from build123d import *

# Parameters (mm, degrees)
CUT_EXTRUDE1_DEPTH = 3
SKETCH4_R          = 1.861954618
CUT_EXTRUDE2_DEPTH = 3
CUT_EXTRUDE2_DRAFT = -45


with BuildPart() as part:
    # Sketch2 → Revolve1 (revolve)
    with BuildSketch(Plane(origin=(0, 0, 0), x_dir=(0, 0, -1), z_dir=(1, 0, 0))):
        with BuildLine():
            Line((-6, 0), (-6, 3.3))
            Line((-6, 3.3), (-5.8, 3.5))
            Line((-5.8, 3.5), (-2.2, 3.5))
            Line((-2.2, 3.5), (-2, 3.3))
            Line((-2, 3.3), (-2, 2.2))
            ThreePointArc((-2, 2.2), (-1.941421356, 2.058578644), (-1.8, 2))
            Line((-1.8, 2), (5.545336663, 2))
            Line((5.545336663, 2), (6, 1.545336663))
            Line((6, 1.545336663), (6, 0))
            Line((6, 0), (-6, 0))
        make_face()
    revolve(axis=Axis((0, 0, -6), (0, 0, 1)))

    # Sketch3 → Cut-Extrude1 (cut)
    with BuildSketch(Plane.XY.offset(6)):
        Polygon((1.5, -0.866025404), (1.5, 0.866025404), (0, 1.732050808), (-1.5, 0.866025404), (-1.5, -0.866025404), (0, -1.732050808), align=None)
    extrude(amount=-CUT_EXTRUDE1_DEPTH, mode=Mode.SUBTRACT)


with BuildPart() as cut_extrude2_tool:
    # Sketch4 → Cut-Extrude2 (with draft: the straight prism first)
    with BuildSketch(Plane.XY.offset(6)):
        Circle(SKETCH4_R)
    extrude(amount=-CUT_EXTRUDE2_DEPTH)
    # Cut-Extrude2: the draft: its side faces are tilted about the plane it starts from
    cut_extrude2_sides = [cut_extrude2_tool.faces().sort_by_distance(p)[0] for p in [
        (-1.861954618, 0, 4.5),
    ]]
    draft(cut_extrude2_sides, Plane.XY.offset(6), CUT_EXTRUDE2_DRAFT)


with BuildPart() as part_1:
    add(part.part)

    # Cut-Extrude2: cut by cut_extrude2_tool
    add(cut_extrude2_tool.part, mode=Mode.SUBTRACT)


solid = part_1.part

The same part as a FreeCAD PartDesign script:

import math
import FreeCAD as App
import Part
import Sketcher
Q = App.Units.Quantity


def faces_at(feature, points):
    """Names of the faces that lie closest to the given points."""
    faces = feature.Shape.Faces
    near = lambda p: min(range(len(faces)), key=lambda i: faces[i].distToShape(Part.Vertex(*p))[0])
    return sorted({f"Face{near(p) + 1}" for p in points})

doc = App.newDocument("Part")
params = doc.addObject("Spreadsheet::Sheet", "Params")
for row, (alias, value) in enumerate([
    ("sketch1_radius", "0.2 mm"),
    ("sketch1_height", "12 mm"),
    ("sketch1_width", "3.3 mm"),
    ("sketch1_width2", "1.1 mm"),
    ("sketch1_height2", "3.6 mm"),
    ("revolution_angle", "360 deg"),
    ("pocket1_length", "3 mm"),
    ("pad1_length", "3 mm"),
    ("draft_angle", "45 deg"),
], start=1):
    params.set(f"A{row}", alias)
    params.set(f"B{row}", "=" + value)
    params.setAlias(f"B{row}", alias)

body = doc.addObject("PartDesign::Body", "Body")

# Sketch on YZ plane
sketch1 = body.newObject("Sketcher::SketchObject", "Sketch")
sketch1.AttachmentSupport = (doc.getObject("YZ_Plane"), [""])
sketch1.MapMode = "FlatFace"
sketch1.addGeometry([
    Part.LineSegment(App.Vector(3.3, 6, 0), App.Vector(0, 6, 0)),  # 0
    Part.LineSegment(App.Vector(0, 6, 0), App.Vector(0, -6, 0)),  # 1
    Part.LineSegment(App.Vector(0, -6, 0), App.Vector(1.55, -6, 0)),  # 2
    Part.LineSegment(App.Vector(1.55, -6, 0), App.Vector(2, -5.55, 0)),  # 3
    Part.LineSegment(App.Vector(2, -5.55, 0), App.Vector(2, 1.8, 0)),  # 4
    Part.ArcOfCircle(Part.Circle(App.Vector(2.2, 1.8, 0), App.Vector(0, 0, 1), 0.2), math.radians(90), math.radians(180)),  # 5
    Part.LineSegment(App.Vector(2.2, 2, 0), App.Vector(3.3, 2, 0)),  # 6
    Part.LineSegment(App.Vector(3.3, 2, 0), App.Vector(3.5, 2.2, 0)),  # 7
    Part.LineSegment(App.Vector(3.5, 2.2, 0), App.Vector(3.5, 5.8, 0)),  # 8
    Part.LineSegment(App.Vector(3.5, 5.8, 0), App.Vector(3.3, 6, 0)),  # 9
], False)
sketch1.addConstraint([
    Sketcher.Constraint("Coincident", 0, 2, 1, 1),
    Sketcher.Constraint("Coincident", 1, 2, 2, 1),
    Sketcher.Constraint("Coincident", 2, 2, 3, 1),
    Sketcher.Constraint("Coincident", 3, 2, 4, 1),
    Sketcher.Constraint("Tangent", 4, 2, 5, 2),
    Sketcher.Constraint("Tangent", 5, 1, 6, 1),
    Sketcher.Constraint("Coincident", 6, 2, 7, 1),
    Sketcher.Constraint("Coincident", 7, 2, 8, 1),
    Sketcher.Constraint("Coincident", 8, 2, 9, 1),
    Sketcher.Constraint("Coincident", 9, 2, 0, 1),
    Sketcher.Constraint("Horizontal", 0),
    Sketcher.Constraint("Vertical", 1),
    Sketcher.Constraint("Horizontal", 2),
    Sketcher.Constraint("Vertical", 4),
    Sketcher.Constraint("Horizontal", 6),
    Sketcher.Constraint("Vertical", 8),
    Sketcher.Constraint("Symmetric", 0, 2, 1, 2, -1, 1),
    Sketcher.Constraint("Parallel", 3, 7),
    Sketcher.Constraint("Perpendicular", 7, 9),
    Sketcher.Constraint("Vertical", 6, 2, 9, 2),
    Sketcher.Constraint("Equal", 7, 9),
    Sketcher.Constraint("Radius", 5, Q("0.2 mm")),
    Sketcher.Constraint("DistanceY", 1, 2, 1, 1, Q("12 mm")),
    Sketcher.Constraint("DistanceX", 0, 2, 0, 1, Q("3.3 mm")),
    Sketcher.Constraint("DistanceX", 6, 1, 6, 2, Q("1.1 mm")),
    Sketcher.Constraint("DistanceY", 8, 1, 8, 2, Q("3.6 mm")),
    Sketcher.Constraint("DistanceY", -1, 1, 5, 1, Q("2 mm")),
    Sketcher.Constraint("Distance", 3, Q("0.642991 mm")),
])
sketch1.setExpression("Constraints[21]", "Params.sketch1_radius")
sketch1.setExpression("Constraints[22]", "Params.sketch1_height")
sketch1.setExpression("Constraints[23]", "Params.sketch1_width")
sketch1.setExpression("Constraints[24]", "Params.sketch1_width2")
sketch1.setExpression("Constraints[25]", "Params.sketch1_height2")
revolution = body.newObject("PartDesign::Revolution", "Revolution")
revolution.Profile = sketch1
revolution.ReferenceAxis = (sketch1, ["V_Axis"])
revolution.setExpression("Angle", "Params.revolution_angle")

# Sketch on XY plane
sketch2 = body.newObject("Sketcher::SketchObject", "Sketch001")
sketch2.AttachmentSupport = (doc.getObject("XY_Plane"), [""])
sketch2.MapMode = "FlatFace"
sketch2.AttachmentOffset = App.Placement(App.Vector(0, 0, 6), App.Rotation())
sketch2.addGeometry([
    Part.LineSegment(App.Vector(1.5, -0.9, 0), App.Vector(1.5, 0.9, 0)),  # 0
    Part.LineSegment(App.Vector(1.5, 0.9, 0), App.Vector(0, 1.7, 0)),  # 1
    Part.LineSegment(App.Vector(0, 1.7, 0), App.Vector(-1.5, 0.9, 0)),  # 2
    Part.LineSegment(App.Vector(-1.5, 0.9, 0), App.Vector(-1.5, -0.9, 0)),  # 3
    Part.LineSegment(App.Vector(-1.5, -0.9, 0), App.Vector(0, -1.7, 0)),  # 4
    Part.LineSegment(App.Vector(0, -1.7, 0), App.Vector(1.5, -0.9, 0)),  # 5
], False)
sketch2.addConstraint([
    Sketcher.Constraint("Coincident", 0, 2, 1, 1),
    Sketcher.Constraint("Coincident", 1, 2, 2, 1),
    Sketcher.Constraint("Coincident", 2, 2, 3, 1),
    Sketcher.Constraint("Coincident", 3, 2, 4, 1),
    Sketcher.Constraint("Coincident", 4, 2, 5, 1),
    Sketcher.Constraint("Coincident", 5, 2, 0, 1),
    Sketcher.Constraint("Vertical", 0),
    Sketcher.Constraint("Vertical", 3),
    Sketcher.Constraint("Symmetric", 0, 2, 3, 2, -1, 1),
    Sketcher.Constraint("Symmetric", 1, 2, 4, 2, -1, 1),
    Sketcher.Constraint("PointOnObject", 1, 2, -2),
    Sketcher.Constraint("Parallel", 2, 5),
    Sketcher.Constraint("Horizontal", 0, 2, 2, 2),
    Sketcher.Constraint("Angle", 1, Q("150 deg")),
    Sketcher.Constraint("DistanceX", 2, 2, 0, 2, Q("3 mm")),
    Sketcher.Constraint("DistanceY", 0, 1, 0, 2, Q("1.732051 mm")),
])
pocket1 = body.newObject("PartDesign::Pocket", "Pocket")
pocket1.Profile = sketch2
pocket1.setExpression("Length", "Params.pocket1_length")
body2 = doc.addObject("PartDesign::Body", "Body001")

# Sketch on XY plane
sketch3 = body2.newObject("Sketcher::SketchObject", "Sketch002")
sketch3.AttachmentSupport = (doc.getObject("XY_Plane001"), [""])
sketch3.MapMode = "FlatFace"
sketch3.AttachmentOffset = App.Placement(App.Vector(0, 0, 6), App.Rotation())
sketch3.addGeometry(Part.Circle(App.Vector(0, 0, 0), App.Vector(0, 0, 1), 1.9), False)
sketch3.addConstraint([
    Sketcher.Constraint("Coincident", 0, 3, -1, 1),
    Sketcher.Constraint("Diameter", 0, Q("3.723909 mm")),
])
pad1 = body2.newObject("PartDesign::Pad", "Pad")
pad1.Profile = sketch3
pad1.setExpression("Length", "Params.pad1_length")
pad1.Reversed = True
doc.recompute()

datumplane = body2.newObject("PartDesign::Plane", "DatumPlane")
datumplane.AttachmentSupport = (doc.getObject("XY_Plane001"), [""])
datumplane.MapMode = "FlatFace"
datumplane.AttachmentOffset = App.Placement(App.Vector(0, 0, 6), App.Rotation())
draft = body2.newObject("PartDesign::Draft", "Draft")
draft.Base = (pad1, faces_at(pad1, [(-1.862, 0, 4.5)]))
draft.NeutralPlane = (datumplane, [""])
draft.setExpression("Angle", "Params.draft_angle")
draft.Reversed = True
doc.recompute()

boolean = body.newObject("PartDesign::Boolean", "Boolean")
boolean.Type = "Cut"
boolean.addObjects([body2])

doc.recompute()
